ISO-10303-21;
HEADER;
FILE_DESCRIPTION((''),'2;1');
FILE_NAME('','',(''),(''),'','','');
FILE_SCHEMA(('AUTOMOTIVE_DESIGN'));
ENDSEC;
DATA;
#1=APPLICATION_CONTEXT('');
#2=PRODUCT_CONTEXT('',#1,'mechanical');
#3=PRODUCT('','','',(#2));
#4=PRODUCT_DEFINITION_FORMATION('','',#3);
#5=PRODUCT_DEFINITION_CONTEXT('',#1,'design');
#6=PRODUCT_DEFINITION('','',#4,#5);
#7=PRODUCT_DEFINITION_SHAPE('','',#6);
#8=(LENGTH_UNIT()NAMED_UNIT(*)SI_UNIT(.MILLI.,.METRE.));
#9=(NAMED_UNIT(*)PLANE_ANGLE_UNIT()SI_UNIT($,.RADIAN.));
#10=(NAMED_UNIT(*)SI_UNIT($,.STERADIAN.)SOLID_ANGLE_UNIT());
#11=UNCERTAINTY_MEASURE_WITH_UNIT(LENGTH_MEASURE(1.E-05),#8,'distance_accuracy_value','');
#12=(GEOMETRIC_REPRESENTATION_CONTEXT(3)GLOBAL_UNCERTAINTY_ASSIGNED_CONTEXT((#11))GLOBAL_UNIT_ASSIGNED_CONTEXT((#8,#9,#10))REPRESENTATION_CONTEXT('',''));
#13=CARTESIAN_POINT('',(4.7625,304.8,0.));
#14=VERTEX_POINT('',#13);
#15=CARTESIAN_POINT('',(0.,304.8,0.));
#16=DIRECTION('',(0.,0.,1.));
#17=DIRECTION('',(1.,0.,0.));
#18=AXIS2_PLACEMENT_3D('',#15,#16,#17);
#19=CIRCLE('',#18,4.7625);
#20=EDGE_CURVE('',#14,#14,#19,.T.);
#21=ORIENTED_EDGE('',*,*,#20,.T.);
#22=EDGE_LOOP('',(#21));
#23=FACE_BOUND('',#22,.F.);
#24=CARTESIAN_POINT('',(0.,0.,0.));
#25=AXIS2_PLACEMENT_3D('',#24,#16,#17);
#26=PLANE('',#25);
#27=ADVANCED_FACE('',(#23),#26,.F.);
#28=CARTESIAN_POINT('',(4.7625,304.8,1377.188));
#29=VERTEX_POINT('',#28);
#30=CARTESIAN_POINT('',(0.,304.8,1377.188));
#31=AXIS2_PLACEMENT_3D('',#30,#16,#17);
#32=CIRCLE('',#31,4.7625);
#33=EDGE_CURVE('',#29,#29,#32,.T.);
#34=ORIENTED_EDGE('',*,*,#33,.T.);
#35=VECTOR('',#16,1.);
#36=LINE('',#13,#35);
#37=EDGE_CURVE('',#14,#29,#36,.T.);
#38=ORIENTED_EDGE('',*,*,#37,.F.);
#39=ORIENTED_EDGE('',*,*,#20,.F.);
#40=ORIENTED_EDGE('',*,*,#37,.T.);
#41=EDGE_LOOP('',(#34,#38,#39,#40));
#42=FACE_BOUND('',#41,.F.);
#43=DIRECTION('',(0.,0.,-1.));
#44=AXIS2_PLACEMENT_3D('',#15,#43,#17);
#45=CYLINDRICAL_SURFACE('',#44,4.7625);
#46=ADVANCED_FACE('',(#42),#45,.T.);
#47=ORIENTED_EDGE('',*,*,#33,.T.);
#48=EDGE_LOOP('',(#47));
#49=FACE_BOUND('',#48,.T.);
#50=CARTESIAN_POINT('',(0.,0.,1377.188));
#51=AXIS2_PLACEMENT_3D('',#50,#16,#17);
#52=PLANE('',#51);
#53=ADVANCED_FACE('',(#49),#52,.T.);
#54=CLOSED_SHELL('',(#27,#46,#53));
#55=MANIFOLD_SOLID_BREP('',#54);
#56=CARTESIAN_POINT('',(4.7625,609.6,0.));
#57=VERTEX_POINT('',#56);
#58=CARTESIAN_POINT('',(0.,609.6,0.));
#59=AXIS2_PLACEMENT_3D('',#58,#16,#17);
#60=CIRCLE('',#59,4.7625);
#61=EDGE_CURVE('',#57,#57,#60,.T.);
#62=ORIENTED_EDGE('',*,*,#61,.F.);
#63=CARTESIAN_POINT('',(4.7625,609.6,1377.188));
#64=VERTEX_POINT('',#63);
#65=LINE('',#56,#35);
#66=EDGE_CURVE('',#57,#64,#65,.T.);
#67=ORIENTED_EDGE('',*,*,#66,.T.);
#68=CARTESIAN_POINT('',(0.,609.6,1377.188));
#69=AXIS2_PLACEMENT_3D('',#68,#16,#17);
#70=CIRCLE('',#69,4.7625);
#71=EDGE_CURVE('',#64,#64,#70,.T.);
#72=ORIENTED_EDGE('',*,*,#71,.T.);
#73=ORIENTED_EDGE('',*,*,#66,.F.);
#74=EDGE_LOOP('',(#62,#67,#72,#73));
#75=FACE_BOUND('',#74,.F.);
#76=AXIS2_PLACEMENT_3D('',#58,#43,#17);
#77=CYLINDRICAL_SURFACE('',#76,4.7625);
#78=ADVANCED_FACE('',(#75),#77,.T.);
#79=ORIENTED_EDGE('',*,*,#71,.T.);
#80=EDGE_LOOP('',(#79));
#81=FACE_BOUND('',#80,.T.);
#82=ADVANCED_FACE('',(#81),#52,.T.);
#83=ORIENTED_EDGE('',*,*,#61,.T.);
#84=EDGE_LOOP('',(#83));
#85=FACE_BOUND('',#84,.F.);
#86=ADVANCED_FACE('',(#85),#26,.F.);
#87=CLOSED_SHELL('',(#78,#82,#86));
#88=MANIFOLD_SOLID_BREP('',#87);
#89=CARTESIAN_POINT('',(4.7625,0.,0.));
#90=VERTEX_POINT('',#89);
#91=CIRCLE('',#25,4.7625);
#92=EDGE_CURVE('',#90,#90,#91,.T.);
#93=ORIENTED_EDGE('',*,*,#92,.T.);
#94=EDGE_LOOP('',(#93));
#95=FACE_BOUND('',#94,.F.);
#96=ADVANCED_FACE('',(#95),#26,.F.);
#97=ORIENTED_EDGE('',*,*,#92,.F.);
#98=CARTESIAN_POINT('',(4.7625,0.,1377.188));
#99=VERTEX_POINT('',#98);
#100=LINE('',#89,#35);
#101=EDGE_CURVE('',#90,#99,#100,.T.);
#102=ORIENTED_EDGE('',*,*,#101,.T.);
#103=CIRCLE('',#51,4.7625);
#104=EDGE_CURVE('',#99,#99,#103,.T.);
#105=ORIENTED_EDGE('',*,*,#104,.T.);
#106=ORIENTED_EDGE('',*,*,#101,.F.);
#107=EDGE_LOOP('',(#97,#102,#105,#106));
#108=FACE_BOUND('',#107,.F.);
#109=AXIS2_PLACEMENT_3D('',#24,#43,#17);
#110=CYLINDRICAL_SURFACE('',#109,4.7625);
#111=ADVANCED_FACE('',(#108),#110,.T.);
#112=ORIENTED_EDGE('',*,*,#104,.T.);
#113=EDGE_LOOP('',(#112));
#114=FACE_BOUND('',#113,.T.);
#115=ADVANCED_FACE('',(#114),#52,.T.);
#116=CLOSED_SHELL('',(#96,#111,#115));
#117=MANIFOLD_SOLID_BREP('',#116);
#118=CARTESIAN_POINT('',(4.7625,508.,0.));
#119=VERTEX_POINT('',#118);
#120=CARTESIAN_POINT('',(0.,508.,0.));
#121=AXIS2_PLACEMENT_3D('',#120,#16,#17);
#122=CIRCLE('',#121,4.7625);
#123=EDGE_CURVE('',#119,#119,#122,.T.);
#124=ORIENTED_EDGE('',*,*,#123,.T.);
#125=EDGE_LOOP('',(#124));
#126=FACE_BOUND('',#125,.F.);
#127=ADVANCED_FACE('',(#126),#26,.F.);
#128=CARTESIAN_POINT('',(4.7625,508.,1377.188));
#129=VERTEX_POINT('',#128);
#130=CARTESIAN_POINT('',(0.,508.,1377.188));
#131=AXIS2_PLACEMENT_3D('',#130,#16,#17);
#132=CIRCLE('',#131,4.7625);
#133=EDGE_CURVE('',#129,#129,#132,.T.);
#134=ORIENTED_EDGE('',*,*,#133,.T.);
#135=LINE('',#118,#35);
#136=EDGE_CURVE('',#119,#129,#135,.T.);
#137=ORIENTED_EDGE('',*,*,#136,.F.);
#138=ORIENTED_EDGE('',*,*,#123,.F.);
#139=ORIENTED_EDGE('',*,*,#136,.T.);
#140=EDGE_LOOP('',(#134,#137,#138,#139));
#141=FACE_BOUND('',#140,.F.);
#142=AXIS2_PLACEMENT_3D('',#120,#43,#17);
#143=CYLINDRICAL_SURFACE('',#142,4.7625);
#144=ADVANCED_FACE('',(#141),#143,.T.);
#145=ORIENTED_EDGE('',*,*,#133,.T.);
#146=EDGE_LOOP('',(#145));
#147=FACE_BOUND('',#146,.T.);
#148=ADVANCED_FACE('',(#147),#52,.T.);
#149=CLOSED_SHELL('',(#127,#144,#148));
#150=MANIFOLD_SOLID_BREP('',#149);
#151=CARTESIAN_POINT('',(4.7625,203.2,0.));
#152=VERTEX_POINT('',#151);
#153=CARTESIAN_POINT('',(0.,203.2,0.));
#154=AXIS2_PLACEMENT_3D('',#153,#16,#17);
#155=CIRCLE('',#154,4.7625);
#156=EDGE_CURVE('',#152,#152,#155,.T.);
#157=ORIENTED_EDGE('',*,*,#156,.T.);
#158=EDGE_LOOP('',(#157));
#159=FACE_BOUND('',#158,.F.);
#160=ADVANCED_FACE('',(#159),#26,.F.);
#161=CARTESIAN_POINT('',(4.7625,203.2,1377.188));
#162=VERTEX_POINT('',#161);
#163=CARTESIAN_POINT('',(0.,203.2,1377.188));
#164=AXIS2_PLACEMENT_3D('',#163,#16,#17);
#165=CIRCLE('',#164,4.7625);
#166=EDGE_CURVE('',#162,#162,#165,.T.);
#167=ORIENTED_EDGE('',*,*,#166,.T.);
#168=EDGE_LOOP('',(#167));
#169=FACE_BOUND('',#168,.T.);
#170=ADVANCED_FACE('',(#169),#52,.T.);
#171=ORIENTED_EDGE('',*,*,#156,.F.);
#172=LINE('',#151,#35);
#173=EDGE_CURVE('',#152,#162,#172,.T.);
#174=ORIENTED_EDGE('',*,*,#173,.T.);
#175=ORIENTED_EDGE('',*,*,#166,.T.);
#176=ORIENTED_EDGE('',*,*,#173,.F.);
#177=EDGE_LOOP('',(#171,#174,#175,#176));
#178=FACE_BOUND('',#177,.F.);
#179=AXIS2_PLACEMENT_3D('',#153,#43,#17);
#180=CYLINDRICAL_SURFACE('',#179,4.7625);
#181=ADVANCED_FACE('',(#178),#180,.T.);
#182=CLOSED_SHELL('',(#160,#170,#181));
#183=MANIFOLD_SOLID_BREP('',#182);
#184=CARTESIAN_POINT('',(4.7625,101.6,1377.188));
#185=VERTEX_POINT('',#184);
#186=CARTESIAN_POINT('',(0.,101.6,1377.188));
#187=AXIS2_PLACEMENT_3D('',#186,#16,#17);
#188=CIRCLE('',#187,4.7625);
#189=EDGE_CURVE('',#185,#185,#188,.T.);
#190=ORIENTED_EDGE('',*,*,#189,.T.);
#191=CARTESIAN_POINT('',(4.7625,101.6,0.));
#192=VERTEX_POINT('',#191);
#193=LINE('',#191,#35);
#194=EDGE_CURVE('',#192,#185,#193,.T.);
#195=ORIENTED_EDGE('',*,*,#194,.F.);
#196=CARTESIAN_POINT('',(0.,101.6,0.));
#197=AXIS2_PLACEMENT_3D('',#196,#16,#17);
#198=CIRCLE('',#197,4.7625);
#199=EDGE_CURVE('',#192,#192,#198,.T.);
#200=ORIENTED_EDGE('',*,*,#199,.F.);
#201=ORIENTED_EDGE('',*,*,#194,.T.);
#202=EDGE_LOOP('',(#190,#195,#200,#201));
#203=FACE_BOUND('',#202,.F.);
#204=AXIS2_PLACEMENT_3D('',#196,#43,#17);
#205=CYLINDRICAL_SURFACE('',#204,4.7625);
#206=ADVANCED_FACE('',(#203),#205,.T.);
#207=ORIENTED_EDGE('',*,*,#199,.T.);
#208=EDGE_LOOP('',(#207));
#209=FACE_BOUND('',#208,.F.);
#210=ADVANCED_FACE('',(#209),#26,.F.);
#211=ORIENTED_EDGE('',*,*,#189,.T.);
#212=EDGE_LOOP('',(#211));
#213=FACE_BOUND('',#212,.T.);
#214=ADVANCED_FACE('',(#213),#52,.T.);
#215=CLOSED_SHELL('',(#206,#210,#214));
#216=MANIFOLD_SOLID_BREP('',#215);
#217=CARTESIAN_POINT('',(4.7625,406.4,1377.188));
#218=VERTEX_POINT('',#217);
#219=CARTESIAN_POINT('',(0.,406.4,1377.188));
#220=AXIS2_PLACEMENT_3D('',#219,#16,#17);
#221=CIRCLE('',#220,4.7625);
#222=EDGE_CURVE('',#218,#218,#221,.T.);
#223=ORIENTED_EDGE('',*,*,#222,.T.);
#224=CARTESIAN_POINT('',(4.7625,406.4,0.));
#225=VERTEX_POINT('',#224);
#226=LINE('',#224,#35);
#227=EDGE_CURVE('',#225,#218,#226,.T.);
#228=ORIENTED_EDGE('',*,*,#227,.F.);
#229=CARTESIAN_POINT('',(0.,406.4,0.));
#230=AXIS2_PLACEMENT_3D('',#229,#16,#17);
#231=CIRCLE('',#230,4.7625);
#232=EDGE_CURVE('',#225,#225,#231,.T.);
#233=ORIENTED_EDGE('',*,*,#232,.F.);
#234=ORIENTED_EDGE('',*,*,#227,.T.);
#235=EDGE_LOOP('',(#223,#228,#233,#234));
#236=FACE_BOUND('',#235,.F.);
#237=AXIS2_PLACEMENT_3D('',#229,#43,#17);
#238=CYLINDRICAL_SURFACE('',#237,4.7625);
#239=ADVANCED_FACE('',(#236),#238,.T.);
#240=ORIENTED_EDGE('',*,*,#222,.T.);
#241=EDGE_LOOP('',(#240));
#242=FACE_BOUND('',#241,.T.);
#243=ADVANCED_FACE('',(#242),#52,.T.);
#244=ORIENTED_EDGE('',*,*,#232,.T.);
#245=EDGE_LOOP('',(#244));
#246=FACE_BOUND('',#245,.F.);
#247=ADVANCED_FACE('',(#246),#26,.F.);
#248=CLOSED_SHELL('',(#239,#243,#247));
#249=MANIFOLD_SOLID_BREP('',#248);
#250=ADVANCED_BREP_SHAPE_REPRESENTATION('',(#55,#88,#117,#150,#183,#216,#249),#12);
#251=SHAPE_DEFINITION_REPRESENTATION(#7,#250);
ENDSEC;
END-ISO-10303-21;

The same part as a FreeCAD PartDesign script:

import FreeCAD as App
import Part
import Sketcher
from FreeCAD import Vector
Q = App.Units.Quantity

doc = App.newDocument("Part")
body = doc.addObject("PartDesign::Body", "Body")
body.AllowCompound = True

# Sketch on XY plane
sketch1 = body.newObject("Sketcher::SketchObject", "Sketch")
sketch1.AttachmentSupport = (doc.getObject("XY_Plane"), [""])
sketch1.MapMode = "FlatFace"
sketch1.addGeometry(Part.Circle(Vector(0, 0, 0), Vector(0, 0, 1), 4.8), False)
sketch1.addGeometry(Part.Circle(Vector(0, 101.6, 0), Vector(0, 0, 1), 4.8), False)
sketch1.addGeometry(Part.Circle(Vector(0, 203.2, 0), Vector(0, 0, 1), 4.8), False)
sketch1.addGeometry(Part.Circle(Vector(0, 304.8, 0), Vector(0, 0, 1), 4.8), False)
sketch1.addGeometry(Part.Circle(Vector(0, 406.4, 0), Vector(0, 0, 1), 4.8), False)
sketch1.addGeometry(Part.Circle(Vector(0, 508, 0), Vector(0, 0, 1), 4.8), False)
sketch1.addGeometry(Part.Circle(Vector(0, 609.6, 0), Vector(0, 0, 1), 4.8), False)
sketch1.addConstraint(Sketcher.Constraint("Coincident", 0, 3, -1, 1))
sketch1.addConstraint(Sketcher.Constraint("Equal", 0, 1))
sketch1.addConstraint(Sketcher.Constraint("Equal", 1, 2))
sketch1.addConstraint(Sketcher.Constraint("Equal", 2, 3))
sketch1.addConstraint(Sketcher.Constraint("Equal", 3, 4))
sketch1.addConstraint(Sketcher.Constraint("Equal", 4, 5))
sketch1.addConstraint(Sketcher.Constraint("Equal", 5, 6))
sketch1.addConstraint(Sketcher.Constraint("PointOnObject", 1, 3, -2))
sketch1.addConstraint(Sketcher.Constraint("PointOnObject", 2, 3, -2))
sketch1.addConstraint(Sketcher.Constraint("PointOnObject", 3, 3, -2))
sketch1.addConstraint(Sketcher.Constraint("PointOnObject", 4, 3, -2))
sketch1.addConstraint(Sketcher.Constraint("PointOnObject", 5, 3, -2))
sketch1.addConstraint(Sketcher.Constraint("PointOnObject", 6, 3, -2))
sketch1.addConstraint(Sketcher.Constraint("Diameter", 0, Q("0.375 in")))
sketch1.addConstraint(Sketcher.Constraint("DistanceY", -1, 1, 1, 3, Q("4 in")))
sketch1.addConstraint(Sketcher.Constraint("DistanceY", 1, 3, 2, 3, Q("4 in")))
sketch1.addConstraint(Sketcher.Constraint("DistanceY", 2, 3, 3, 3, Q("4 in")))
sketch1.addConstraint(Sketcher.Constraint("DistanceY", 3, 3, 4, 3, Q("4 in")))
sketch1.addConstraint(Sketcher.Constraint("DistanceY", 4, 3, 5, 3, Q("4 in")))
sketch1.addConstraint(Sketcher.Constraint("DistanceY", 5, 3, 6, 3, Q("4 in")))
pad1 = body.newObject("PartDesign::Pad", "Pad")
pad1.Profile = sketch1
pad1.Length = Q("54.22 in")

doc.recompute()
